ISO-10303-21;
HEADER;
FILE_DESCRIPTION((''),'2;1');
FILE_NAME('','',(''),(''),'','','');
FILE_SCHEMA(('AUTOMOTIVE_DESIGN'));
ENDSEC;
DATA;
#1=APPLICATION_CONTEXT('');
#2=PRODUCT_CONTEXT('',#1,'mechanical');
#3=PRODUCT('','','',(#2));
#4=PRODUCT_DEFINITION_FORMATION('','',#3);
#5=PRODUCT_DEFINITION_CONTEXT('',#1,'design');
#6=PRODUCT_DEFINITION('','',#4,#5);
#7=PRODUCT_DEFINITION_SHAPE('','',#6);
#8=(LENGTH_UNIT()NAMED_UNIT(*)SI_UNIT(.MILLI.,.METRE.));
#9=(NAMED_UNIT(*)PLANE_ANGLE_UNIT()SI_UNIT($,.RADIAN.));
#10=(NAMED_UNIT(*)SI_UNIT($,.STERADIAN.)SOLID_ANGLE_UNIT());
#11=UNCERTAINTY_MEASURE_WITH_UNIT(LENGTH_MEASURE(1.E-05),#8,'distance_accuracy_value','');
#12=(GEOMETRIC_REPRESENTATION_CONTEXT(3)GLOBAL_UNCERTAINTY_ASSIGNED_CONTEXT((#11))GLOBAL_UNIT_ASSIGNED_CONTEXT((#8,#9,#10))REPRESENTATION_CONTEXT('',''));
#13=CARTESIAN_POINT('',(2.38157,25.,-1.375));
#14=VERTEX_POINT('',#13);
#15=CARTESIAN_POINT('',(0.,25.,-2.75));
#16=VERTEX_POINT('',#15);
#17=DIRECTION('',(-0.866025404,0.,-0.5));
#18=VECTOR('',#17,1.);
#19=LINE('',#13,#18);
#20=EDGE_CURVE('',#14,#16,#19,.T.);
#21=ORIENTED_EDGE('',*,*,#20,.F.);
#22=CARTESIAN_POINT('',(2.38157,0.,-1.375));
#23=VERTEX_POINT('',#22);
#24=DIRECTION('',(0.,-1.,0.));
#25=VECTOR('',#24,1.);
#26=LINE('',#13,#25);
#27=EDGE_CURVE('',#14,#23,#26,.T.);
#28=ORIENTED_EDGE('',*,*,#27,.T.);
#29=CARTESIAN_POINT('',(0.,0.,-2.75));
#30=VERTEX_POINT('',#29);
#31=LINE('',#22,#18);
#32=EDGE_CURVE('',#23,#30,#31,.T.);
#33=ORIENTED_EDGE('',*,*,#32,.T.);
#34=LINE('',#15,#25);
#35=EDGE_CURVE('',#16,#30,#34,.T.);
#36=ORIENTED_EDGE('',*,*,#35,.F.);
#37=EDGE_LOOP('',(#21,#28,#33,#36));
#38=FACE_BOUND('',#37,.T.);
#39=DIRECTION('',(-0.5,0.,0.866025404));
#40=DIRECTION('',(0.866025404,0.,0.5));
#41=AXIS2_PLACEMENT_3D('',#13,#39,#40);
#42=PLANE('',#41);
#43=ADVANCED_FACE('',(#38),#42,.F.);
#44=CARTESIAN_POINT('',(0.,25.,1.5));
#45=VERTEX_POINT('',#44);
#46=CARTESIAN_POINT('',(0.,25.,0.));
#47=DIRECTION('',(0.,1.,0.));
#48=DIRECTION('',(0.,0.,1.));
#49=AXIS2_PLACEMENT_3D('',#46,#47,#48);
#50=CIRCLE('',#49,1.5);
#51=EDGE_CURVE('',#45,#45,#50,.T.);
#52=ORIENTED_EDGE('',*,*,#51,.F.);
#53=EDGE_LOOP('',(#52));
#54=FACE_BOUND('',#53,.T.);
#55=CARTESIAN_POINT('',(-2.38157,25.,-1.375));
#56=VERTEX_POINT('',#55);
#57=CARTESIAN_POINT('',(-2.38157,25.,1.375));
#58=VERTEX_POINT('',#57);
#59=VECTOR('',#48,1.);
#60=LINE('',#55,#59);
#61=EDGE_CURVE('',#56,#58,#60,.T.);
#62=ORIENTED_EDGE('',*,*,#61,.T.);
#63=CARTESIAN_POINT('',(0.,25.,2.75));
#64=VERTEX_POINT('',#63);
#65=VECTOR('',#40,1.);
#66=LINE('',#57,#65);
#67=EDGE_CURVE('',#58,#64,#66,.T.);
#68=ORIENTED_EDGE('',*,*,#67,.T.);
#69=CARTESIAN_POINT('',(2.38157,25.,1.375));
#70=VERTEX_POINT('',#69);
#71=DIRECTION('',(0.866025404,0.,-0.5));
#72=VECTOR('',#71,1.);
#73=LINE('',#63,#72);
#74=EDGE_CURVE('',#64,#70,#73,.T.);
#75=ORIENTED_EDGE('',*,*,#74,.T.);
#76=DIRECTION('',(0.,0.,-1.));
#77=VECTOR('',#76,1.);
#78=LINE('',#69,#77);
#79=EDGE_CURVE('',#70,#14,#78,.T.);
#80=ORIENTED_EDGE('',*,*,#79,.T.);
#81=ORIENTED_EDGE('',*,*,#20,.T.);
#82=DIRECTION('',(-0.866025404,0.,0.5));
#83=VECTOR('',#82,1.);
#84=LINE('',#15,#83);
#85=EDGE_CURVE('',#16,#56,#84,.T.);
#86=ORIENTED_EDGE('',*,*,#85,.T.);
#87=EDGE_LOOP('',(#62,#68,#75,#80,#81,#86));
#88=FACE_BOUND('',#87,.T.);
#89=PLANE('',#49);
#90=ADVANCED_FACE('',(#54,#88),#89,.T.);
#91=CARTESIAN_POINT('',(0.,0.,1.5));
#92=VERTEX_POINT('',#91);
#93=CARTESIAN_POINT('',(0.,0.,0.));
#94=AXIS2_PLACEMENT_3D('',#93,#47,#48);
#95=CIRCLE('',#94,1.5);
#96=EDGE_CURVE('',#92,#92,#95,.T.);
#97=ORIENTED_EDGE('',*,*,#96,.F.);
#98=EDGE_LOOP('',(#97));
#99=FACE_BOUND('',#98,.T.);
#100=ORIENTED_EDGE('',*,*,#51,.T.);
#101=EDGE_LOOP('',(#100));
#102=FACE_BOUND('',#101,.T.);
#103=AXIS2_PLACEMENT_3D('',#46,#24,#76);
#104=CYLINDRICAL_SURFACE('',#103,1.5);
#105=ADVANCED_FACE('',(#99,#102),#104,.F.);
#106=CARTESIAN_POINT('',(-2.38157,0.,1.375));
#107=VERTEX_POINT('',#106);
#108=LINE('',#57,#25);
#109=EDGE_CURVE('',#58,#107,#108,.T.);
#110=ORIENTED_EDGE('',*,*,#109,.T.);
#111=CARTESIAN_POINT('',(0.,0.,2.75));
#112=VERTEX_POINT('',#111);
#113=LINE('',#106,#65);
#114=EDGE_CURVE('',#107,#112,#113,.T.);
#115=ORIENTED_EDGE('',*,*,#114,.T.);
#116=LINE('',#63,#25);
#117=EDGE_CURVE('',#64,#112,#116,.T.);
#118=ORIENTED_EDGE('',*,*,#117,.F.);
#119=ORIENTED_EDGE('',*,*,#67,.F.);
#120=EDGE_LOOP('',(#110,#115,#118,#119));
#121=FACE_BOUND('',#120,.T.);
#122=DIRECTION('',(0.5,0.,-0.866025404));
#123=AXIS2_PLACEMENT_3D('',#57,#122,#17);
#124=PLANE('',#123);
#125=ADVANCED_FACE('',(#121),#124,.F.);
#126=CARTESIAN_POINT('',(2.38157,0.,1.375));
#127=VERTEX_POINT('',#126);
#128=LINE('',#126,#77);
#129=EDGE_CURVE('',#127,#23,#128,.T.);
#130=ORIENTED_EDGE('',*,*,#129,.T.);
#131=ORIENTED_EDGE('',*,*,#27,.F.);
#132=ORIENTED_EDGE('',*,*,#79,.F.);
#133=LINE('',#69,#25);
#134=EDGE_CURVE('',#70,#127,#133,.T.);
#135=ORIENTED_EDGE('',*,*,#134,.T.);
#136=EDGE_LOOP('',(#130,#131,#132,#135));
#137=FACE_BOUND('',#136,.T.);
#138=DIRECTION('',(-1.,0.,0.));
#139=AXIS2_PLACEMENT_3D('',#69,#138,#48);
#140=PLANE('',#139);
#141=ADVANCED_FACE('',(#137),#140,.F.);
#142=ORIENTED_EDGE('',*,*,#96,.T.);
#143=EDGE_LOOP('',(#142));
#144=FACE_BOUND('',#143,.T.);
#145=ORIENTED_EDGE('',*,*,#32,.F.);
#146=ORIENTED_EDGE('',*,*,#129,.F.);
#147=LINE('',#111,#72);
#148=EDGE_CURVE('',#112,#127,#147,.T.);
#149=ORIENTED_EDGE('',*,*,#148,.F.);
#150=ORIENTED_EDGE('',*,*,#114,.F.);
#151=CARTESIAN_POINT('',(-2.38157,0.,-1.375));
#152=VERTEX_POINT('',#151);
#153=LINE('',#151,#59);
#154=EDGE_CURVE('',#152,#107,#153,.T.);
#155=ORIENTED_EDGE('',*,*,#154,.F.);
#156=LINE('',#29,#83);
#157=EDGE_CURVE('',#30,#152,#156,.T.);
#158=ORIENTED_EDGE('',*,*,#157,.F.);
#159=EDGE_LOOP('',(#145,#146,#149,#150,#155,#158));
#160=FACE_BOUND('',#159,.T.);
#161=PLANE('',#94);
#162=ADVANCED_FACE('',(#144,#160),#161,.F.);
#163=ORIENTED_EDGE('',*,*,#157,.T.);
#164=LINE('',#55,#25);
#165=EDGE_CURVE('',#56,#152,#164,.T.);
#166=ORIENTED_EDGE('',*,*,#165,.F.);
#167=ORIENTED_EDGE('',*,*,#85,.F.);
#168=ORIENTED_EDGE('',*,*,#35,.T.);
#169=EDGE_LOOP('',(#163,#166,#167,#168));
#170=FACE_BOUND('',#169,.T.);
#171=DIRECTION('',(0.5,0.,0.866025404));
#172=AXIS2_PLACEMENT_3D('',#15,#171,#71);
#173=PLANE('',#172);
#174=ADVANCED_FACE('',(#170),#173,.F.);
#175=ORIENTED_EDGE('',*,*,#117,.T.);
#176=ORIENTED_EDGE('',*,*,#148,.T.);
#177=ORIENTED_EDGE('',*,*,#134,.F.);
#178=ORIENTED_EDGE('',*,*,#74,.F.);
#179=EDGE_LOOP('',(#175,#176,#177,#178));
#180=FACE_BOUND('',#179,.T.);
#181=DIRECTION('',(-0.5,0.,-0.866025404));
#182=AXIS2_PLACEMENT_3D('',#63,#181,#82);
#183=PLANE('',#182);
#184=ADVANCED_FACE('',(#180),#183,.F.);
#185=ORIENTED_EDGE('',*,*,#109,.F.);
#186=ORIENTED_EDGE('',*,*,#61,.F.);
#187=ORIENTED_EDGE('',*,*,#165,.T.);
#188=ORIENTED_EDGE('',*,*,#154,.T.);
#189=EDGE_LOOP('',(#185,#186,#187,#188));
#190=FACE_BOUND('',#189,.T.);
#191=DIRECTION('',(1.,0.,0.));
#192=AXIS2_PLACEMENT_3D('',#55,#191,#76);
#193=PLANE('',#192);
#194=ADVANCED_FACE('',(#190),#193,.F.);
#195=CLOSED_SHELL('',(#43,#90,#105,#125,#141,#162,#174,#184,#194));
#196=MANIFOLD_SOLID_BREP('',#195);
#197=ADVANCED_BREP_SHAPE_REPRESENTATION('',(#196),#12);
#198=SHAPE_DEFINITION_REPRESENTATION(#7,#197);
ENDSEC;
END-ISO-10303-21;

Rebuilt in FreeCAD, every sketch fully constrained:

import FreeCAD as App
import Part
import Sketcher
from FreeCAD import Vector
Q = App.Units.Quantity


def add_polygon(sketch, points):
    """Adds a closed chain of lines whose ends are joined by coincident constraints."""
    first, n = sketch.GeometryCount, len(points)
    for a, b in zip(points, points[1:] + points[:1]):
        sketch.addGeometry(Part.LineSegment(App.Vector(*a, 0), App.Vector(*b, 0)), False)
    for i in range(n):
        sketch.addConstraint(Sketcher.Constraint("Coincident", first + i, 2, first + (i + 1) % n, 1))

doc = App.newDocument("Part")
body = doc.addObject("PartDesign::Body", "Body")

# Sketch on XZ plane
sketch1 = body.newObject("Sketcher::SketchObject", "Sketch")
sketch1.AttachmentSupport = (doc.getObject("XZ_Plane"), [""])
sketch1.MapMode = "FlatFace"
add_polygon(sketch1, [(0, -2.8), (-2.4, -1.4), (-2.4, 1.4), (0, 2.8), (2.4, 1.4), (2.4, -1.4)])  # lines 0-5
sketch1.addGeometry(Part.Circle(Vector(0, 0, 0), Vector(0, 0, 1), 1.5), False)  # 6
sketch1.addConstraint([
    Sketcher.Constraint("Vertical", 1),
    Sketcher.Constraint("Vertical", 4),
    Sketcher.Constraint("Coincident", 6, 3, -1, 1),
    Sketcher.Constraint("Symmetric", 0, 2, 3, 2, -1, 1),
    Sketcher.Constraint("Symmetric", 2, 2, 5, 2, -1, 1),
    Sketcher.Constraint("PointOnObject", 2, 2, -2),
    Sketcher.Constraint("Parallel", 2, 5),
    Sketcher.Constraint("Horizontal", 1, 2, 3, 2),
    Sketcher.Constraint("Diameter", 6, 3.0),
    Sketcher.Constraint("Angle", 0, Q("150 deg")),
    Sketcher.Constraint("DistanceY", 1, 1, 1, 2, 2.75),
    Sketcher.Constraint("Distance", 0, 2.75),
])
pad1 = body.newObject("PartDesign::Pad", "Pad")
pad1.Profile = sketch1
pad1.Length = 25
pad1.Reversed = True

doc.recompute()
